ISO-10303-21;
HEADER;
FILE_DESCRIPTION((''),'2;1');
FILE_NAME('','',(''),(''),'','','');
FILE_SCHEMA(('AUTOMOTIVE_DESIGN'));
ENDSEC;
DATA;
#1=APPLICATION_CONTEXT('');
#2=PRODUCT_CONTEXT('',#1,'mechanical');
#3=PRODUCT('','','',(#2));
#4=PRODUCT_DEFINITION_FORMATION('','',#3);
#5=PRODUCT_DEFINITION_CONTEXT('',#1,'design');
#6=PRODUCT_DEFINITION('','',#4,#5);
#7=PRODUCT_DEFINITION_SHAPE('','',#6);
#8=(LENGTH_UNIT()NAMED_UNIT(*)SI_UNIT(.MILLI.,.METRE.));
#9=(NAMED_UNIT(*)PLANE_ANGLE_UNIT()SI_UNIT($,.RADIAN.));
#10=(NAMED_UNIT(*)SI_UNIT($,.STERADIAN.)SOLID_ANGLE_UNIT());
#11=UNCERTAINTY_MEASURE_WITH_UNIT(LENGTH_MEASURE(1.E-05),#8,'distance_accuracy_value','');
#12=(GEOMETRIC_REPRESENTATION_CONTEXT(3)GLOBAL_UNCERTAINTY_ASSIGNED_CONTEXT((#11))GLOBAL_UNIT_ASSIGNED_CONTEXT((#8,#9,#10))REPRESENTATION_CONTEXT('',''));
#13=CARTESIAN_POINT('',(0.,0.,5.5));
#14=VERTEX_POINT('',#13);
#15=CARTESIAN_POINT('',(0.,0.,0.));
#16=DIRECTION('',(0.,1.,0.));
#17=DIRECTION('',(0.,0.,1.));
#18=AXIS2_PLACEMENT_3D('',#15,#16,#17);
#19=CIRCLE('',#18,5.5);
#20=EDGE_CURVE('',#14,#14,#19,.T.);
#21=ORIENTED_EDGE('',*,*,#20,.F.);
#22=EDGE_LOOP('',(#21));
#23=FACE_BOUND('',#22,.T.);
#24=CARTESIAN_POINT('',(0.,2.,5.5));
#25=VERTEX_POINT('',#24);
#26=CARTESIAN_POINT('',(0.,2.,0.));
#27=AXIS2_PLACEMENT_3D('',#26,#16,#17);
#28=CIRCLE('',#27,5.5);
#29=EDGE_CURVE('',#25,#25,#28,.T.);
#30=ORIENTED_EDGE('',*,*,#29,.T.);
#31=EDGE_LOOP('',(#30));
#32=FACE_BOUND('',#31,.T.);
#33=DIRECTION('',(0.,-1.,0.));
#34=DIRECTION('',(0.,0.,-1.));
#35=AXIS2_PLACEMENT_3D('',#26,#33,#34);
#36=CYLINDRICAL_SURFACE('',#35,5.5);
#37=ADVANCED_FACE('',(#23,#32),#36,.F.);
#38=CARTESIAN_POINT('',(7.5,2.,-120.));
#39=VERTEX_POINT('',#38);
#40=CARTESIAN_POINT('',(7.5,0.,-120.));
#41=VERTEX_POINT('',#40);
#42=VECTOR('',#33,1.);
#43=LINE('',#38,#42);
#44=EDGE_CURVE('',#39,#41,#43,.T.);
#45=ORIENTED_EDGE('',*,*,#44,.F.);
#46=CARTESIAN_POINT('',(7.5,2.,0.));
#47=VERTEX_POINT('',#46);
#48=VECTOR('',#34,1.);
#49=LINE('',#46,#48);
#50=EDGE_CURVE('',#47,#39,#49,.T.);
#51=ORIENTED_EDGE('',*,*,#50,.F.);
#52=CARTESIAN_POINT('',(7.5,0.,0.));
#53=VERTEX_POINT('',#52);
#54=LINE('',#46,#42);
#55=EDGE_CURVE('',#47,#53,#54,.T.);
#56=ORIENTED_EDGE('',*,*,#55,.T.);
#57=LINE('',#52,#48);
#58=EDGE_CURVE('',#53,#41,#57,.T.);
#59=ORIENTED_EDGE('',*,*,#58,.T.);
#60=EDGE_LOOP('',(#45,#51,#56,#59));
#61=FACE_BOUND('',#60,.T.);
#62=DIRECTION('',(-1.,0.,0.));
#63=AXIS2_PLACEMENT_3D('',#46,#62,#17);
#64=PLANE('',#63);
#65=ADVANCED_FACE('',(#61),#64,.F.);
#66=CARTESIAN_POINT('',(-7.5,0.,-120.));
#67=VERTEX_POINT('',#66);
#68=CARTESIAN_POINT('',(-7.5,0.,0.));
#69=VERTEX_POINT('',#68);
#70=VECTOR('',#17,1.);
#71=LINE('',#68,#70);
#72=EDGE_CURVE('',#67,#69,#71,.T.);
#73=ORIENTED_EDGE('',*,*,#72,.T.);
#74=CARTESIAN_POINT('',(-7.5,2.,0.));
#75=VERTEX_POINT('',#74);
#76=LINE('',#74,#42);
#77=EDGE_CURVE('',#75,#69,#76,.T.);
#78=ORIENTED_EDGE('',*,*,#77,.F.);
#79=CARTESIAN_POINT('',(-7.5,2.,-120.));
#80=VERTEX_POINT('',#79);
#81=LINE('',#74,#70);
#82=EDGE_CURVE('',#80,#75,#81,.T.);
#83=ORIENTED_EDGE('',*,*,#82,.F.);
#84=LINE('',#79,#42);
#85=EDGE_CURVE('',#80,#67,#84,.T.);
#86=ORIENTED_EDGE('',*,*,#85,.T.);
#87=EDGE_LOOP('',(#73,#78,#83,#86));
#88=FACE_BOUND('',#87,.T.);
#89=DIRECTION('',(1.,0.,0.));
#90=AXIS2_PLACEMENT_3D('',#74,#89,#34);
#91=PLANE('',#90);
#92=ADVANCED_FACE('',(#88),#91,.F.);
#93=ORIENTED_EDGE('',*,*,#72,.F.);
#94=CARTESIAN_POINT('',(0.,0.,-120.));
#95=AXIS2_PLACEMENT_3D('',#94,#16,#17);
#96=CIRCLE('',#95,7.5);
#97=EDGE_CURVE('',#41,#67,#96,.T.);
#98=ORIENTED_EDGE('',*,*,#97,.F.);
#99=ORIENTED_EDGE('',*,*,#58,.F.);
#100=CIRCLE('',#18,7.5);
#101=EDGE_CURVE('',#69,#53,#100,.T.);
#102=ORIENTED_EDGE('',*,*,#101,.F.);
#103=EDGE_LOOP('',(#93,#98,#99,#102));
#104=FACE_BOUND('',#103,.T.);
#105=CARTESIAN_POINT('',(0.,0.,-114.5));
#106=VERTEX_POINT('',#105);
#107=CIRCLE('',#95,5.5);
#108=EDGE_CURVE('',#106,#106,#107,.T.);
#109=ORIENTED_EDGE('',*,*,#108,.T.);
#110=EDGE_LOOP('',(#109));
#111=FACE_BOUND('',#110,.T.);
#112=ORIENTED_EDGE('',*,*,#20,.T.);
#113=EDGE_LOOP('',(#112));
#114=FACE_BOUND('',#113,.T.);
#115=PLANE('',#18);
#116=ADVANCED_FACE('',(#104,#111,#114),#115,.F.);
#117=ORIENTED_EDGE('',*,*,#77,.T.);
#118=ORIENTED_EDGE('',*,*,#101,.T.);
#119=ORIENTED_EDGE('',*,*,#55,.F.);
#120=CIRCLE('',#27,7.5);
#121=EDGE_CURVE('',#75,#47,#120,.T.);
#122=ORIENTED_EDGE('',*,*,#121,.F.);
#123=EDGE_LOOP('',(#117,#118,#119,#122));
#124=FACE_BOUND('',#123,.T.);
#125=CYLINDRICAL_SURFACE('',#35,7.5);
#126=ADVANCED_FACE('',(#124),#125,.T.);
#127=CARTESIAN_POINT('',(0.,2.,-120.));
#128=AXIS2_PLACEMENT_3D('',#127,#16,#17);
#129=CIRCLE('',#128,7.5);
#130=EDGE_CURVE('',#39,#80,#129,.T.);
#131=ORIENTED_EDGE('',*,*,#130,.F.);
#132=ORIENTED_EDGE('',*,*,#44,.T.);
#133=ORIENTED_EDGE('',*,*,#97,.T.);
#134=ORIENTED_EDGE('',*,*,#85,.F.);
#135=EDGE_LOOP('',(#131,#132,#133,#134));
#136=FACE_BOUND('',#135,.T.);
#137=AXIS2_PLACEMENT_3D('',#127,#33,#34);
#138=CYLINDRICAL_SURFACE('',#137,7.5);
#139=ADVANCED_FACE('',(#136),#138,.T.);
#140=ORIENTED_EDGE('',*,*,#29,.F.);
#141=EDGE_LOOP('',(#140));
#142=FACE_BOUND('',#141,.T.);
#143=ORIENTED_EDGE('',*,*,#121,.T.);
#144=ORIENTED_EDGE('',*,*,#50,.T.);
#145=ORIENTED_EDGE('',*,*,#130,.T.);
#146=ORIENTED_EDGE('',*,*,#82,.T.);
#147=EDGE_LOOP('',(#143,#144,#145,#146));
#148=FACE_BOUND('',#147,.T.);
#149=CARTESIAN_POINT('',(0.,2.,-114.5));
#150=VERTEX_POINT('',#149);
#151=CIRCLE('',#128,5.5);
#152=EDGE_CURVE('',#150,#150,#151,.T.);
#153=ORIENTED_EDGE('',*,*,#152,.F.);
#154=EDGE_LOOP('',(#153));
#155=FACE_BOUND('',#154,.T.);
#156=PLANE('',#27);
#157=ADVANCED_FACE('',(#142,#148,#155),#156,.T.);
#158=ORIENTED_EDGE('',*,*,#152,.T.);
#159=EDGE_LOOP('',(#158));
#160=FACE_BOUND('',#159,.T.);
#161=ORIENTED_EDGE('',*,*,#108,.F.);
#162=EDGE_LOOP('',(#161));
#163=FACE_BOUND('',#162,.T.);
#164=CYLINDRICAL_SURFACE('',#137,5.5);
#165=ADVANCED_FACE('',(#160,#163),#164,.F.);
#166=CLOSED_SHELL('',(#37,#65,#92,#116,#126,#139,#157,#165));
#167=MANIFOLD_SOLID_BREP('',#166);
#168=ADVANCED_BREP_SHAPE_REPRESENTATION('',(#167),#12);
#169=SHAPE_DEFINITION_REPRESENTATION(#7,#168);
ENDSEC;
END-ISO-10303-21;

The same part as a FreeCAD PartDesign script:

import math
import FreeCAD as App
import Part
import Sketcher

doc = App.newDocument("Part")
params = doc.addObject("Spreadsheet::Sheet", "Params")
for row, (alias, value) in enumerate([
    ("sketch1_diameter", "11 mm"),
    ("sketch1_radius", "7.5 mm"),
    ("sketch1_height", "120 mm"),
    ("pad1_length", "2 mm"),
], start=1):
    params.set(f"A{row}", alias)
    params.set(f"B{row}", "=" + value)
    params.setAlias(f"B{row}", alias)

body = doc.addObject("PartDesign::Body", "Body")

sketch1 = doc.addObject("Sketcher::SketchObject", "Sketch")
body.addObject(sketch1)
sketch1.AttachmentSupport = (doc.XZ_Plane, [""])
sketch1.MapMode = "FlatFace"
sketch1.addGeometry([
    Part.LineSegment(App.Vector(-7.5, -120, 0), App.Vector(-7.5, 0, 0)),
    Part.ArcOfCircle(Part.Circle(App.Vector(0, 0, 0), App.Vector(0, 0, 1), 7.5), math.radians(0), math.radians(180)),
    Part.LineSegment(App.Vector(7.5, 0, 0), App.Vector(7.5, -120, 0)),
    Part.ArcOfCircle(Part.Circle(App.Vector(0, -120, 0), App.Vector(0, 0, 1), 7.5), math.radians(180), math.radians(360)),
    Part.Circle(App.Vector(0, 0, 0), App.Vector(0, 0, 1), 5.5),
    Part.Circle(App.Vector(0, -120, 0), App.Vector(0, 0, 1), 5.5),
], False)
sketch1.addConstraint([
    Sketcher.Constraint("Tangent", 0, 2, 1, 2),
    Sketcher.Constraint("Tangent", 1, 1, 2, 1),
    Sketcher.Constraint("Tangent", 2, 2, 3, 2),
    Sketcher.Constraint("Tangent", 3, 1, 0, 1),
    Sketcher.Constraint("Vertical", 0),
    Sketcher.Constraint("Vertical", 2),
    Sketcher.Constraint("Coincident", 1, 3, -1, 1),
    Sketcher.Constraint("Coincident", 4, 3, -1, 1),
    Sketcher.Constraint("Coincident", 5, 3, 3, 3),
    Sketcher.Constraint("Equal", 4, 5),
    Sketcher.Constraint("Diameter", 4, 11.0),
    Sketcher.Constraint("Radius", 1, 7.5),
    Sketcher.Constraint("DistanceY", 0, 1, 0, 2, 120.0),
])
sketch1.setExpression("Constraints[10]", "Params.sketch1_diameter")
sketch1.setExpression("Constraints[11]", "Params.sketch1_radius")
sketch1.setExpression("Constraints[12]", "Params.sketch1_height")
pad1 = doc.addObject("PartDesign::Pad", "Pad")
body.addObject(pad1)
pad1.Profile = sketch1
pad1.setExpression("Length", "Params.pad1_length")
pad1.Reversed = True

doc.recompute()
